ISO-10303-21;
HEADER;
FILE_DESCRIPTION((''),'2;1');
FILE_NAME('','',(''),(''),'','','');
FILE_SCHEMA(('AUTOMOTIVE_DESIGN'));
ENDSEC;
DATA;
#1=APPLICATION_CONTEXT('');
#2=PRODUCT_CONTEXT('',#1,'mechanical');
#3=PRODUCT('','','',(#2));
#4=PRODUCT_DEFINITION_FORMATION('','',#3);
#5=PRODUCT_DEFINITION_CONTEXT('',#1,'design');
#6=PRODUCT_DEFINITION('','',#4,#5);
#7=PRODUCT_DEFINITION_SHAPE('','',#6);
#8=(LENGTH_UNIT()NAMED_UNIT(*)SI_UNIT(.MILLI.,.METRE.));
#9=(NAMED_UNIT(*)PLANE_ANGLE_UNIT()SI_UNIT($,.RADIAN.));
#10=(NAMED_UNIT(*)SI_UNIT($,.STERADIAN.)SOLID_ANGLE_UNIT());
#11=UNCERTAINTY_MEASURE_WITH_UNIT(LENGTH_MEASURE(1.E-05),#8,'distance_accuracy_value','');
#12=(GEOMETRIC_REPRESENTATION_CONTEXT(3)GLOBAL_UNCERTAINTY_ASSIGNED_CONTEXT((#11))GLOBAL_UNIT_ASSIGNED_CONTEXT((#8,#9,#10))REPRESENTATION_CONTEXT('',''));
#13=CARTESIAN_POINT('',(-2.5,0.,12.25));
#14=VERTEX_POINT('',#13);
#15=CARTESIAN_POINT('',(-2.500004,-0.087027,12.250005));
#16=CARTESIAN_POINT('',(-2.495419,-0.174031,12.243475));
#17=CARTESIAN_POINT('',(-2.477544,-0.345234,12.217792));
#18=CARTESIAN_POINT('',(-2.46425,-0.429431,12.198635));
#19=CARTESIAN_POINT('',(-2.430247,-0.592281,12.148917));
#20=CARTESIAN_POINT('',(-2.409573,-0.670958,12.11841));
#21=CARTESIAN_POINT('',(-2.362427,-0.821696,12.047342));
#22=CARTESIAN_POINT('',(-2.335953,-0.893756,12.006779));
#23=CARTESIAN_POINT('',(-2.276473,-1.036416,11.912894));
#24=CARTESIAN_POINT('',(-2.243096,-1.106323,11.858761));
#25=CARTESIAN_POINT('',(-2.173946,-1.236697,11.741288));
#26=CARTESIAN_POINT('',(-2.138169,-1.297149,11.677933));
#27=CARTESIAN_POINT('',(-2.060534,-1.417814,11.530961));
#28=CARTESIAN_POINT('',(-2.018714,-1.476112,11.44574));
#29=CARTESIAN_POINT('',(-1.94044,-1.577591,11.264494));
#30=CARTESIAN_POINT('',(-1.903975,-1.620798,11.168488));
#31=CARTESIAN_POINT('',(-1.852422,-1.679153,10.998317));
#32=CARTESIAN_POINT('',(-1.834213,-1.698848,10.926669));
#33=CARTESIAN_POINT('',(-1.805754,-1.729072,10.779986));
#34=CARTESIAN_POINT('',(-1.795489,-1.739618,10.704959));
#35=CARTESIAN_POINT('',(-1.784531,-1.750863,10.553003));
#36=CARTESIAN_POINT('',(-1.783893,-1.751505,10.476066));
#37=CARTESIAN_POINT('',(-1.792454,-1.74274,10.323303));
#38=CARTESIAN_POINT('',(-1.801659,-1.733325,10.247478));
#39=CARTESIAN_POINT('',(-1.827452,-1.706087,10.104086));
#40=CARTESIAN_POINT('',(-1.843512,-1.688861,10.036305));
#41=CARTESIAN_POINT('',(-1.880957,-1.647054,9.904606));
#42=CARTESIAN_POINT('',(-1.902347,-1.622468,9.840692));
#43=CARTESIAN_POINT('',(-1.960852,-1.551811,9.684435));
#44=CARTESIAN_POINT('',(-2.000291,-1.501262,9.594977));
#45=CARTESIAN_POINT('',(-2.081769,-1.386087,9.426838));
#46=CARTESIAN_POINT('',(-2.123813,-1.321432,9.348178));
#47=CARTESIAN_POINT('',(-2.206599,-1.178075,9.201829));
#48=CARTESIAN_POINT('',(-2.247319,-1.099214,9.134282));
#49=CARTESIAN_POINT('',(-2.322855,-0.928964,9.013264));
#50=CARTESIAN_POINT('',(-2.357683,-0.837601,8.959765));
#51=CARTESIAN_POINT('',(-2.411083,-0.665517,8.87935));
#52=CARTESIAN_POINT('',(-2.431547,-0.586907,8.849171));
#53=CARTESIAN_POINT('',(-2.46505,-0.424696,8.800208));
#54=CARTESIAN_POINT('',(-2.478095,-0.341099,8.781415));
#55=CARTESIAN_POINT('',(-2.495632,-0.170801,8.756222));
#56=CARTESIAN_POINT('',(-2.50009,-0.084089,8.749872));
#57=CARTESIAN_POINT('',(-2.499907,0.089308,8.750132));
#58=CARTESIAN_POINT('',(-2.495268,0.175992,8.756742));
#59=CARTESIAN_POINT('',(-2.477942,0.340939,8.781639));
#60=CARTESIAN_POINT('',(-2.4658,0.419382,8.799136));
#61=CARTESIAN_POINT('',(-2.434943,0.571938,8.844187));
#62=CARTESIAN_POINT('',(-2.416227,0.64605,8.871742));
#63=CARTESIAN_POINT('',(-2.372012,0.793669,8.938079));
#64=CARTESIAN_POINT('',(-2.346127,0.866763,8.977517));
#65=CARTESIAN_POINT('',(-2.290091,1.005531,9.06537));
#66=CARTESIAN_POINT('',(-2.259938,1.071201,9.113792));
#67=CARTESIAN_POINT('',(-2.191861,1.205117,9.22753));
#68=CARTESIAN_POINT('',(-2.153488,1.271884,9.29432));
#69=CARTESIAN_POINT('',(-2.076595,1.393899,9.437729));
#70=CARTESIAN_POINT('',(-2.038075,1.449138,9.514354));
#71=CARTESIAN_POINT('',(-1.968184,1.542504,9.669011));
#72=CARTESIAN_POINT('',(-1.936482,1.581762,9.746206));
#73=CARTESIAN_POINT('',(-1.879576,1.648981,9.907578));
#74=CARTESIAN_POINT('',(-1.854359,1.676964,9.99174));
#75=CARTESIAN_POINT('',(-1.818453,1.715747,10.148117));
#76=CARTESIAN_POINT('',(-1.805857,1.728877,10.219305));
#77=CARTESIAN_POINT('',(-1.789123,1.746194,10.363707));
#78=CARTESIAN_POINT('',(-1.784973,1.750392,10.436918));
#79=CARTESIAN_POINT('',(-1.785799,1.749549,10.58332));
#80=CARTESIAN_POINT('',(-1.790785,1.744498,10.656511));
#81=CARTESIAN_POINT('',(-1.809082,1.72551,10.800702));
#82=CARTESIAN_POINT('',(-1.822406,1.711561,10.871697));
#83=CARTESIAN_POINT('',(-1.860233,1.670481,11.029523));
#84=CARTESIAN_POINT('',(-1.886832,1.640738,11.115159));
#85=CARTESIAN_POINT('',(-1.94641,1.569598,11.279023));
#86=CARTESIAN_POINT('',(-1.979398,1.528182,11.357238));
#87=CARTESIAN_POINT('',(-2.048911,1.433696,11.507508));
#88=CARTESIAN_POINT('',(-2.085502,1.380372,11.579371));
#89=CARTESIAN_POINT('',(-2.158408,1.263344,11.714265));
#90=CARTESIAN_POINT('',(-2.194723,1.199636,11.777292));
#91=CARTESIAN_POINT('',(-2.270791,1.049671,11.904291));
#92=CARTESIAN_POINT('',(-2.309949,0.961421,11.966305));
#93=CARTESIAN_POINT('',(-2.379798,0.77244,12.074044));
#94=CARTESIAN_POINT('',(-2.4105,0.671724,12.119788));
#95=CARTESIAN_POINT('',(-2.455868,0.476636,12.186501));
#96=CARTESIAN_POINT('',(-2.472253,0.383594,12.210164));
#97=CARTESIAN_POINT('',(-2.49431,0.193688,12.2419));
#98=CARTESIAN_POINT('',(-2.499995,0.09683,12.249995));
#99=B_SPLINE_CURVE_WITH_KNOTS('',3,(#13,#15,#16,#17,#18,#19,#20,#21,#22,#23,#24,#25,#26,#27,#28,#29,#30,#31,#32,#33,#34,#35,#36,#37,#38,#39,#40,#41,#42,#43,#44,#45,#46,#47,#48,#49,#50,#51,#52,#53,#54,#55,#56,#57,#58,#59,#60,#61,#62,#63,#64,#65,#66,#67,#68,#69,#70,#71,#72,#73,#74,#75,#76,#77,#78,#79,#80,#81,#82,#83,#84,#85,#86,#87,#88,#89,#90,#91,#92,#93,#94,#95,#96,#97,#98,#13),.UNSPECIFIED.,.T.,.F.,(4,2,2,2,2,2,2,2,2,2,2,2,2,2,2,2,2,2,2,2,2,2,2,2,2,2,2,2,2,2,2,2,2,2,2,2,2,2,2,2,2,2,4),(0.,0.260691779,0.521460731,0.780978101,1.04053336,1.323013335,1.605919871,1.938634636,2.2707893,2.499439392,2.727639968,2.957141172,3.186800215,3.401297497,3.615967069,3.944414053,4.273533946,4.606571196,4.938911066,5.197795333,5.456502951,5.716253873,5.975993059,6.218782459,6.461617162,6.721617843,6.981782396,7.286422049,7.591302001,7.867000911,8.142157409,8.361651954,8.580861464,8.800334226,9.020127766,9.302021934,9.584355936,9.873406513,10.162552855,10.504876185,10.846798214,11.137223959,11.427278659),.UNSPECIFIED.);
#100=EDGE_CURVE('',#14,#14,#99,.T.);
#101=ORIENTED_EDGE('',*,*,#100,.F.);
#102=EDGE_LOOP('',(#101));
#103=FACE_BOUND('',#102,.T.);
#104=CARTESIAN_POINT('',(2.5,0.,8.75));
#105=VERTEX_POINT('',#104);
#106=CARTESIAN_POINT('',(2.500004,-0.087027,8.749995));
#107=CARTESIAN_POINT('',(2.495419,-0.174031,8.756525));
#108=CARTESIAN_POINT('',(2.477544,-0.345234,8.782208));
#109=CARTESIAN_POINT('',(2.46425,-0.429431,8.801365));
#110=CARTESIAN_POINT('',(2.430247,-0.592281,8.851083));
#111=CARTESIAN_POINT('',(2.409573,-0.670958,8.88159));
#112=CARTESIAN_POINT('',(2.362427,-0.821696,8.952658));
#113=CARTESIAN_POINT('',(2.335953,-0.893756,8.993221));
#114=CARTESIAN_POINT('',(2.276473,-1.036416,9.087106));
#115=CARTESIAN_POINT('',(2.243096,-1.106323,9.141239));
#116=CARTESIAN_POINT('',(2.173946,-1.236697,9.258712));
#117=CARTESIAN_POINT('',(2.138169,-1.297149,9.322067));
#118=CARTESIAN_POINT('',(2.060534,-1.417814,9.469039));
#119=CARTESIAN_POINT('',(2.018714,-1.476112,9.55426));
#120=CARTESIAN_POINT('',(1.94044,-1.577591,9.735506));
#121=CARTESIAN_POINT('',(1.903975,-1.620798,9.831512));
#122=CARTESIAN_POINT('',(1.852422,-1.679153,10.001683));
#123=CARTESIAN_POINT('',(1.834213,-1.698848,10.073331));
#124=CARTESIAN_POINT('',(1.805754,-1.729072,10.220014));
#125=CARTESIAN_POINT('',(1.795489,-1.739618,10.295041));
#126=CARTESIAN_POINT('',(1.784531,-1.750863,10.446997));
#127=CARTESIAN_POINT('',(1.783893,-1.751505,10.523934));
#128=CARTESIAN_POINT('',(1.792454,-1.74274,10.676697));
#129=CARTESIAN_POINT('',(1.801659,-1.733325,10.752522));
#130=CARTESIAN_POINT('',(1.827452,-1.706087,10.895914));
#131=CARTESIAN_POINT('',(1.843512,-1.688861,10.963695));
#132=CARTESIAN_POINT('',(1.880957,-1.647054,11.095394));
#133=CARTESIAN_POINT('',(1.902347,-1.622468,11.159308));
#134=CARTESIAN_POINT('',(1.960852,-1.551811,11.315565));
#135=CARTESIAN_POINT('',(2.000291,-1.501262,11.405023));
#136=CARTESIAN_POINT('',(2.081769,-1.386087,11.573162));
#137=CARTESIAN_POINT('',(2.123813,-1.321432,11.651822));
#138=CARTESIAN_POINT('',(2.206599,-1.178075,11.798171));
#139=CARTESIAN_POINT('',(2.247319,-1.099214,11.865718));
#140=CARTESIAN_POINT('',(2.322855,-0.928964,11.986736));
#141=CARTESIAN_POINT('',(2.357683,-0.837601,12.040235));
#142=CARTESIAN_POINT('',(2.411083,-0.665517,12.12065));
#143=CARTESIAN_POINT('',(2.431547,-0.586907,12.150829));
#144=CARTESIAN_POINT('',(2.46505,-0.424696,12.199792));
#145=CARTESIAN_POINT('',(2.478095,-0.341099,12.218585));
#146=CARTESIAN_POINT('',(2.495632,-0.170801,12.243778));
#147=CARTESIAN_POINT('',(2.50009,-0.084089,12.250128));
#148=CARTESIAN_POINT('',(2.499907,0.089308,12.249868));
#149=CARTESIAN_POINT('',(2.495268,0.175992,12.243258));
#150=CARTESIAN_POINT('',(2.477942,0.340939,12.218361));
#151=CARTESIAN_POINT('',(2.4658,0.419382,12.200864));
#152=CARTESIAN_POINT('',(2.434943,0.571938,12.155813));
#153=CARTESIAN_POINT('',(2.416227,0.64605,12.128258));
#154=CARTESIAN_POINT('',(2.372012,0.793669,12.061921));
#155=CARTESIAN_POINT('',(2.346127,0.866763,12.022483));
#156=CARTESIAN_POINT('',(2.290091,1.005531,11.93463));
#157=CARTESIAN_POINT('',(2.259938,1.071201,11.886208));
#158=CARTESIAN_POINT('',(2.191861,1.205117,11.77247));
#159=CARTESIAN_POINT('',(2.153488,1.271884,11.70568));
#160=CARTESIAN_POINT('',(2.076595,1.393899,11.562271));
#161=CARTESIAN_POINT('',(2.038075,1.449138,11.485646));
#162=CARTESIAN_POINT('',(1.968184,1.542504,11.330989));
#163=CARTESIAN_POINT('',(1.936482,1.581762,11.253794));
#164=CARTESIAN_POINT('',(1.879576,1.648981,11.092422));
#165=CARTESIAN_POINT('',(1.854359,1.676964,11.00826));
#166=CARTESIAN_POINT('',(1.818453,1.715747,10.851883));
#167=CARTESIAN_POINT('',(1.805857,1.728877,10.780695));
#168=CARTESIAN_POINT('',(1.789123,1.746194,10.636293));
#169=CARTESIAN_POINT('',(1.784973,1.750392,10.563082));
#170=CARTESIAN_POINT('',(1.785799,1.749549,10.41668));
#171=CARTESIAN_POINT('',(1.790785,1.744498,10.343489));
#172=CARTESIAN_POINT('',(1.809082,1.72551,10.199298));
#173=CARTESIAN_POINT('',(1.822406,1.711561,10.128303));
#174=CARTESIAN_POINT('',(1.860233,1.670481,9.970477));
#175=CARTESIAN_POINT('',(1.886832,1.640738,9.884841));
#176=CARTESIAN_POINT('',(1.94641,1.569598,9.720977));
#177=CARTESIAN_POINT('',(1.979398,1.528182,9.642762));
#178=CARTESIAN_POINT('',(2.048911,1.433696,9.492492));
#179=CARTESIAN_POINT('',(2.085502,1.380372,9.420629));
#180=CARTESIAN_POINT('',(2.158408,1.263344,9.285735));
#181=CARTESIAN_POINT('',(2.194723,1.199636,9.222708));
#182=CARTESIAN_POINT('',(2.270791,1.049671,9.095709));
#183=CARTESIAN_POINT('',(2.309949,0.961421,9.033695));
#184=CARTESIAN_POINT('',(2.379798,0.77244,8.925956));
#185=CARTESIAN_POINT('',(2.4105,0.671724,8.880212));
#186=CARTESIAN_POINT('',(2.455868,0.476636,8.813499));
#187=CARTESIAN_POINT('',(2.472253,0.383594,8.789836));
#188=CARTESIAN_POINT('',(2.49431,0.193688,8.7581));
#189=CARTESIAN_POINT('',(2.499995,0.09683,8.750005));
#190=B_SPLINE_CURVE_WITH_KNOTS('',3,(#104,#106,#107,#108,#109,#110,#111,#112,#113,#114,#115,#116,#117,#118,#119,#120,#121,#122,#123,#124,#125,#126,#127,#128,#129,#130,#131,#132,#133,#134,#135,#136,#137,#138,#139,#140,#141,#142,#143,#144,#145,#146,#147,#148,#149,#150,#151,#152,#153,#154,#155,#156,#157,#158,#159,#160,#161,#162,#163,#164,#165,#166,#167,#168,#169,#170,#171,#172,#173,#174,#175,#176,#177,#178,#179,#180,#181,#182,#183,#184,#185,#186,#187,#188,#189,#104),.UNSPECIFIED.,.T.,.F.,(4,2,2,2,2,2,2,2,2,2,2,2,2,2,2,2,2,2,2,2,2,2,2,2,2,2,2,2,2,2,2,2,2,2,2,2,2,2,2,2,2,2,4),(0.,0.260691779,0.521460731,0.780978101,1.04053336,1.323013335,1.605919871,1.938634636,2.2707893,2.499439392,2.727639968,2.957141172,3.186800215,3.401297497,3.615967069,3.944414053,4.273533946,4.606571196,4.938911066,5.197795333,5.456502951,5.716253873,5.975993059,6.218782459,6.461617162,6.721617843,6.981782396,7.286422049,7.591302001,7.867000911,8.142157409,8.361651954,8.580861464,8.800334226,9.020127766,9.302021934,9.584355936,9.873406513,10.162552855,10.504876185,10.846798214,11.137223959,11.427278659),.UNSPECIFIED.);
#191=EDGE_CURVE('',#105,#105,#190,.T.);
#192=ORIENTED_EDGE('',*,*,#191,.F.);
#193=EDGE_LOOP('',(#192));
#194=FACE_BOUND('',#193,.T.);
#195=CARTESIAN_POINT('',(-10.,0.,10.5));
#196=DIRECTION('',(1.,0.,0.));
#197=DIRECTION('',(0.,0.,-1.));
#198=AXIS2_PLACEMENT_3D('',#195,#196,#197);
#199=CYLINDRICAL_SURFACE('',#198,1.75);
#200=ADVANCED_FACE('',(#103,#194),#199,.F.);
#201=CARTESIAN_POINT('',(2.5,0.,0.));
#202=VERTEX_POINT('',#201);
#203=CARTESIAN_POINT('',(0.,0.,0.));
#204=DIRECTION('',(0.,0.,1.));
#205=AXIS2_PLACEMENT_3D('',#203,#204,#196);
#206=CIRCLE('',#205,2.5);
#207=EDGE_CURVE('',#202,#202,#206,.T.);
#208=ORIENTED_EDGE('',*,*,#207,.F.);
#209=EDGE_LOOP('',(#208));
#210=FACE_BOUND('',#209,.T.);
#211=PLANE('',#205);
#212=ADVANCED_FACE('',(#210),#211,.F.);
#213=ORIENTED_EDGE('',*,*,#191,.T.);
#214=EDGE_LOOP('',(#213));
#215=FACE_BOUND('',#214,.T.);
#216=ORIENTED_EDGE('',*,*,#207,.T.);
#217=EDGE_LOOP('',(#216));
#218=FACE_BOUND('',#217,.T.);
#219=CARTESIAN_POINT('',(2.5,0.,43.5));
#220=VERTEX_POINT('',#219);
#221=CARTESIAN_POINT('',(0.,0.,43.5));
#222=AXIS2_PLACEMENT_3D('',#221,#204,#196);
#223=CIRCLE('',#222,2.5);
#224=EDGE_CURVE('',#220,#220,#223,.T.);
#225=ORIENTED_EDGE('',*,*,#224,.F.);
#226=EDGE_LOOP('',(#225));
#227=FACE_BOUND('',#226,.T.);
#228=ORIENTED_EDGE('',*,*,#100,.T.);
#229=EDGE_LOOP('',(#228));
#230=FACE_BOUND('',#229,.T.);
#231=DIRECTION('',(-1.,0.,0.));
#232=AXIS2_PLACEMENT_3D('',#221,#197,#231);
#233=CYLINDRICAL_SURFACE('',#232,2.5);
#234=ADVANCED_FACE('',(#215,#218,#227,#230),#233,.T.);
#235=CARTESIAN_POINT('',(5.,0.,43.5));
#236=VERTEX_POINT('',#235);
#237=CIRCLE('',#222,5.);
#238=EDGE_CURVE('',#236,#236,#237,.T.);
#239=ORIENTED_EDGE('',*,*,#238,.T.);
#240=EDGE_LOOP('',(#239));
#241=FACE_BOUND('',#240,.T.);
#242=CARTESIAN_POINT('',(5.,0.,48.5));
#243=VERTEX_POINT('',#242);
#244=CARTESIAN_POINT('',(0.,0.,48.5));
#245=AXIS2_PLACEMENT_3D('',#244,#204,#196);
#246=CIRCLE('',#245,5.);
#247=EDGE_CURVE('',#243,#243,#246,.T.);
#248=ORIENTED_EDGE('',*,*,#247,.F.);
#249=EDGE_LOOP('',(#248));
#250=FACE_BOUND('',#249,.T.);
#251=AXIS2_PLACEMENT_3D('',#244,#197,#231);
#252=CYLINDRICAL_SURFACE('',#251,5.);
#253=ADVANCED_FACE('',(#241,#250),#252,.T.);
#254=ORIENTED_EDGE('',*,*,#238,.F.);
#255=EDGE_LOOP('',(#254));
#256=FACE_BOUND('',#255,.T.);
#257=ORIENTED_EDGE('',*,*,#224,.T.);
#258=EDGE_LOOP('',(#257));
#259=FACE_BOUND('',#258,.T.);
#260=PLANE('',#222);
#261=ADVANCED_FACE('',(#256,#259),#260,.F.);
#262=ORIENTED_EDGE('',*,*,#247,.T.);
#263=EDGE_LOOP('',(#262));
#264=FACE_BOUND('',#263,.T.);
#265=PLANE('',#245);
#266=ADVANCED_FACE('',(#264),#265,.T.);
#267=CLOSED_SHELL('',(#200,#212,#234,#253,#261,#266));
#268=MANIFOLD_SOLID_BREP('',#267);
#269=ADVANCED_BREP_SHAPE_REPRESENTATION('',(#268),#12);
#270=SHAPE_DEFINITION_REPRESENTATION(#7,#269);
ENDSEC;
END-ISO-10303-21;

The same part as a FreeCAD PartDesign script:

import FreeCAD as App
import Part
import Sketcher

V = App.Vector

doc = App.newDocument("Part")
params = doc.addObject("Spreadsheet::Sheet", "Params")
for row, (alias, value) in enumerate([
    ("sketch1_diameter", "5 mm"),
    ("pad1_length", "43.5 mm"),
    ("sketch2_diameter", "10 mm"),
    ("pad2_length", "5 mm"),
    ("sketch3_diameter", "3.5 mm"),
    ("pocket1_length", "20 mm"),
], start=1):
    params.set(f"A{row}", alias)
    params.set(f"B{row}", "=" + value)
    params.setAlias(f"B{row}", alias)

body = doc.addObject("PartDesign::Body", "Body")

sketch1 = doc.addObject("Sketcher::SketchObject", "Sketch")
body.addObject(sketch1)
sketch1.AttachmentSupport = (doc.XY_Plane, [""])
sketch1.MapMode = "FlatFace"
sketch1.addGeometry(Part.Circle(V(0, 0, 0), V(0, 0, 1), 2.5), False)
sketch1.addConstraint([
    Sketcher.Constraint("Coincident", 0, 3, -1, 1),
    Sketcher.Constraint("Diameter", 0, 5.0),
])
sketch1.setExpression("Constraints[1]", "Params.sketch1_diameter")
pad1 = doc.addObject("PartDesign::Pad", "Pad")
body.addObject(pad1)
pad1.Profile = sketch1
pad1.setExpression("Length", "Params.pad1_length")

sketch2 = doc.addObject("Sketcher::SketchObject", "Sketch001")
body.addObject(sketch2)
sketch2.AttachmentSupport = (doc.XY_Plane, [""])
sketch2.MapMode = "FlatFace"
sketch2.AttachmentOffset = App.Placement(V(0, 0, 43.5), App.Rotation())
sketch2.addGeometry(Part.Circle(V(0, 0, 0), V(0, 0, 1), 5), False)
sketch2.addConstraint([
    Sketcher.Constraint("Coincident", 0, 3, -1, 1),
    Sketcher.Constraint("Diameter", 0, 10.0),
])
sketch2.setExpression("Constraints[1]", "Params.sketch2_diameter")
pad2 = doc.addObject("PartDesign::Pad", "Pad001")
body.addObject(pad2)
pad2.Profile = sketch2
pad2.setExpression("Length", "Params.pad2_length")

sketch3 = doc.addObject("Sketcher::SketchObject", "Sketch002")
body.addObject(sketch3)
sketch3.AttachmentSupport = (doc.YZ_Plane, [""])
sketch3.MapMode = "FlatFace"
sketch3.AttachmentOffset = App.Placement(V(0, 0, 10), App.Rotation())
sketch3.addGeometry(Part.Circle(V(0, 10.5, 0), V(0, 0, 1), 1.8), False)
sketch3.addConstraint([
    Sketcher.Constraint("PointOnObject", 0, 3, -2),
    Sketcher.Constraint("Diameter", 0, 3.5),
    Sketcher.Constraint("DistanceY", -1, 1, 0, 3, 10.5),
])
sketch3.setExpression("Constraints[1]", "Params.sketch3_diameter")
pocket1 = doc.addObject("PartDesign::Pocket", "Pocket")
body.addObject(pocket1)
pocket1.Profile = sketch3
pocket1.setExpression("Length", "Params.pocket1_length")

doc.recompute()
